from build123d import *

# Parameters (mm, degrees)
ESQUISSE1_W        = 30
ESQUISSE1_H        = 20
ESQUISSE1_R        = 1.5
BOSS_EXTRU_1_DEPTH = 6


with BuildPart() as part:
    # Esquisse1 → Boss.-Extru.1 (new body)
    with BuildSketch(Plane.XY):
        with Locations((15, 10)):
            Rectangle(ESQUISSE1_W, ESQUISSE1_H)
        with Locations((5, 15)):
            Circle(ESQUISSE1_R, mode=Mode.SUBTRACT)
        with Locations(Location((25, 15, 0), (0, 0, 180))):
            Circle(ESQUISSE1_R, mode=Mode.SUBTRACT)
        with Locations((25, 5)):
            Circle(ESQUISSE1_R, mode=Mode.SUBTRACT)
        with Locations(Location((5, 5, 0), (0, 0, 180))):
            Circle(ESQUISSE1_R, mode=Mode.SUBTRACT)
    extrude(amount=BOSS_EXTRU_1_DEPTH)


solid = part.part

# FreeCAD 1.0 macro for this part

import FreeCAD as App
import Part
import Sketcher

V = App.Vector

doc = App.newDocument("Part")
body = doc.addObject("PartDesign::Body", "Body")

# Sketch on XY plane
sketch1 = doc.addObject("Sketcher::SketchObject", "Sketch")
body.addObject(sketch1)
sketch1.AttachmentSupport = (doc.XY_Plane, [""])
sketch1.MapMode = "FlatFace"
sketch1.addGeometry([
    Part.LineSegment(V(0, 20, 0), V(0, 0, 0)),  # 0
    Part.LineSegment(V(0, 0, 0), V(30, 0, 0)),  # 1
    Part.LineSegment(V(30, 0, 0), V(30, 20, 0)),  # 2
    Part.LineSegment(V(30, 20, 0), V(0, 20, 0)),  # 3
    Part.Circle(V(5, 5, 0), V(0, 0, 1), 1.5),  # 4
    Part.Circle(V(25, 5, 0), V(0, 0, 1), 1.5),  # 5
    Part.Circle(V(5, 15, 0), V(0, 0, 1), 1.5),  # 6
    Part.Circle(V(25, 15, 0), V(0, 0, 1), 1.5),  # 7
], False)
sketch1.addConstraint([
    Sketcher.Constraint("Coincident", 0, 2, 1, 1),
    Sketcher.Constraint("Coincident", 1, 2, 2, 1),
    Sketcher.Constraint("Coincident", 2, 2, 3, 1),
    Sketcher.Constraint("Coincident", 3, 2, 0, 1),
    Sketcher.Constraint("Vertical", 0),
    Sketcher.Constraint("Horizontal", 1),
    Sketcher.Constraint("Vertical", 2),
    Sketcher.Constraint("Horizontal", 3),
    Sketcher.Constraint("Coincident", 0, 2, -1, 1),
    Sketcher.Constraint("Equal", 4, 5),
    Sketcher.Constraint("Equal", 5, 6),
    Sketcher.Constraint("Equal", 6, 7),
    Sketcher.Constraint("Horizontal", 4, 3, 5, 3),
    Sketcher.Constraint("Horizontal", 6, 3, 7, 3),
    Sketcher.Constraint("Vertical", 4, 3, 6, 3),
    Sketcher.Constraint("Vertical", 5, 3, 7, 3),
    Sketcher.Constraint("Diameter", 4, 3.0),
    Sketcher.Constraint("DistanceX", 1, 1, 1, 2, 30.0),
    Sketcher.Constraint("DistanceY", 0, 2, 0, 1, 20.0),
    Sketcher.Constraint("DistanceX", -1, 1, 4, 3, 5.0),
    Sketcher.Constraint("DistanceY", -1, 1, 4, 3, 5.0),
    Sketcher.Constraint("DistanceX", -1, 1, 5, 3, 25.0),
    Sketcher.Constraint("DistanceY", -1, 1, 6, 3, 15.0),
])
pad1 = doc.addObject("PartDesign::Pad", "Pad")
body.addObject(pad1)
pad1.Profile = sketch1
pad1.Length = 6

doc.recompute()
